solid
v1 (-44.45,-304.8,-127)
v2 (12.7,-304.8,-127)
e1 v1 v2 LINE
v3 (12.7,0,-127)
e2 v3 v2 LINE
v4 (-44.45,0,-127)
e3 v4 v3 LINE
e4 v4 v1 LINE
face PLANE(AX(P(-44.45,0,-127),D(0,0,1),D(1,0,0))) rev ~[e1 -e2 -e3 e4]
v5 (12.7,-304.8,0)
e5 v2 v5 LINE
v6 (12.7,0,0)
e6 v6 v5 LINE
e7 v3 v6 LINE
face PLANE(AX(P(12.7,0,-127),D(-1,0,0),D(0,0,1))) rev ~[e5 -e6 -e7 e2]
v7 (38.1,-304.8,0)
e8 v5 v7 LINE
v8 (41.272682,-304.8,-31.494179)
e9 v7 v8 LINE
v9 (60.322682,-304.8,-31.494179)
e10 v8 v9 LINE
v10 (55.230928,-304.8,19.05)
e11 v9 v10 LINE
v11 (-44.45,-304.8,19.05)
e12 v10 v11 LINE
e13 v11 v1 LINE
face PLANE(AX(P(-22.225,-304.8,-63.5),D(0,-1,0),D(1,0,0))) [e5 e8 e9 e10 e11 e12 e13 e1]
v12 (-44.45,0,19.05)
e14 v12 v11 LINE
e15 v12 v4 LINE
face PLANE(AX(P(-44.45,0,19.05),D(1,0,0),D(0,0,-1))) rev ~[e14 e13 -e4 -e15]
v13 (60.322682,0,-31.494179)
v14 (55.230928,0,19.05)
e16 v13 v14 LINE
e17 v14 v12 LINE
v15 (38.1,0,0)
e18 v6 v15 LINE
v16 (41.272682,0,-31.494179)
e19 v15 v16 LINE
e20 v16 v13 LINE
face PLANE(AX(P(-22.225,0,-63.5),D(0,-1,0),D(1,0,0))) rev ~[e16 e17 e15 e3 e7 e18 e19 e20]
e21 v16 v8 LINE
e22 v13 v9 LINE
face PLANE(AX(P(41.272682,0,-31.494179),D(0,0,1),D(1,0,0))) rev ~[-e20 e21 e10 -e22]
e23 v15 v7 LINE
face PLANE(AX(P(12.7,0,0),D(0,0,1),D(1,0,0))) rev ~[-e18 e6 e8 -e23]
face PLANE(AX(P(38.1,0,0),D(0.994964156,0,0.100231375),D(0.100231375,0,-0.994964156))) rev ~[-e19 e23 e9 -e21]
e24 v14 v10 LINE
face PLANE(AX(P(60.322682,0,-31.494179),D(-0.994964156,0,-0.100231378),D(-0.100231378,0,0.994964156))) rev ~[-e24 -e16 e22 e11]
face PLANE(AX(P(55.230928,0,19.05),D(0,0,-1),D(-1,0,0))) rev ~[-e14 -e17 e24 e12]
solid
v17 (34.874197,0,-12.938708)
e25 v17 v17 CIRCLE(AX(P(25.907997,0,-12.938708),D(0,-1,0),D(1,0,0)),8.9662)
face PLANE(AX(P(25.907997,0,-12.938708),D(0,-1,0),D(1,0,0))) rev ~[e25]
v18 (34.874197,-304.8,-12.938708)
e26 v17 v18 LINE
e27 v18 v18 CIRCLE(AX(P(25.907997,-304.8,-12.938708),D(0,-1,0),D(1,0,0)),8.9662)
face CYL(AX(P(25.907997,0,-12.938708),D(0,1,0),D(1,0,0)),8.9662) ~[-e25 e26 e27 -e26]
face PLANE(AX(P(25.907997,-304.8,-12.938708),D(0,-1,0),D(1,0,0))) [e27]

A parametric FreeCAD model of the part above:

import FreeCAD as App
import Part
import Sketcher
Q = App.Units.Quantity

doc = App.newDocument("Part")
body = doc.addObject("PartDesign::Body", "Body")
body.AllowCompound = True

# Sketch on XZ plane
sketch1 = doc.addObject("Sketcher::SketchObject", "Sketch")
body.addObject(sketch1)
sketch1.AttachmentSupport = (doc.XZ_Plane, [""])
sketch1.MapMode = "FlatFace"
sketch1.addGeometry([
    Part.LineSegment(App.Vector(-44, -127, 0), App.Vector(13, -127, 0)),  # 0
    Part.LineSegment(App.Vector(13, -127, 0), App.Vector(13, 0, 0)),  # 1
    Part.LineSegment(App.Vector(13, 0, 0), App.Vector(38, 0, 0)),  # 2
    Part.LineSegment(App.Vector(38, 0, 0), App.Vector(41, -31, 0)),  # 3
    Part.LineSegment(App.Vector(41, -31, 0), App.Vector(60, -31, 0)),  # 4
    Part.LineSegment(App.Vector(60, -31, 0), App.Vector(55, 19, 0)),  # 5
    Part.LineSegment(App.Vector(55, 19, 0), App.Vector(-44, 19, 0)),  # 6
    Part.LineSegment(App.Vector(-44, 19, 0), App.Vector(-44, -127, 0)),  # 7
    Part.Circle(App.Vector(26, -13, 0), App.Vector(0, 0, 1), 9),  # 8
], False)
sketch1.addConstraint([
    Sketcher.Constraint("Coincident", 0, 2, 1, 1),
    Sketcher.Constraint("Coincident", 1, 2, 2, 1),
    Sketcher.Constraint("Coincident", 2, 2, 3, 1),
    Sketcher.Constraint("Coincident", 3, 2, 4, 1),
    Sketcher.Constraint("Coincident", 4, 2, 5, 1),
    Sketcher.Constraint("Coincident", 5, 2, 6, 1),
    Sketcher.Constraint("Coincident", 6, 2, 7, 1),
    Sketcher.Constraint("Coincident", 7, 2, 0, 1),
    Sketcher.Constraint("Horizontal", 0),
    Sketcher.Constraint("Vertical", 1),
    Sketcher.Constraint("Horizontal", 2),
    Sketcher.Constraint("Horizontal", 4),
    Sketcher.Constraint("Horizontal", 6),
    Sketcher.Constraint("Vertical", 7),
    Sketcher.Constraint("PointOnObject", 1, 2, -1),
    Sketcher.Constraint("Parallel", 3, 5),
    Sketcher.Constraint("DistanceX", 2, 1, 2, 2, Q("1 in")),
    Sketcher.Constraint("DistanceY", 1, 1, 1, 2, Q("5 in")),
    Sketcher.Constraint("Distance", 5, Q("2 in")),
    Sketcher.Constraint("Diameter", 8, Q("0.706 in")),
    Sketcher.Constraint("DistanceX", 0, 1, 0, 2, Q("2.25 in")),
    Sketcher.Constraint("DistanceX", 4, 1, 4, 2, Q("0.75 in")),
    Sketcher.Constraint("DistanceY", 7, 2, 7, 1, Q("5.75 in")),
    Sketcher.Constraint("DistanceX", -1, 1, 0, 2, Q("0.5 in")),
    Sketcher.Constraint("DistanceX", -1, 1, 8, 3, Q("1.0199999 in")),
    Sketcher.Constraint("Distance", 3, Q("31.653582 mm")),
    Sketcher.Constraint("DistanceY", 0, 2, 8, 3, Q("114.061292 mm")),
])
pad1 = doc.addObject("PartDesign::Pad", "Pad")
body.addObject(pad1)
pad1.Profile = sketch1
pad1.Length = Q("12 in")

doc.recompute()
